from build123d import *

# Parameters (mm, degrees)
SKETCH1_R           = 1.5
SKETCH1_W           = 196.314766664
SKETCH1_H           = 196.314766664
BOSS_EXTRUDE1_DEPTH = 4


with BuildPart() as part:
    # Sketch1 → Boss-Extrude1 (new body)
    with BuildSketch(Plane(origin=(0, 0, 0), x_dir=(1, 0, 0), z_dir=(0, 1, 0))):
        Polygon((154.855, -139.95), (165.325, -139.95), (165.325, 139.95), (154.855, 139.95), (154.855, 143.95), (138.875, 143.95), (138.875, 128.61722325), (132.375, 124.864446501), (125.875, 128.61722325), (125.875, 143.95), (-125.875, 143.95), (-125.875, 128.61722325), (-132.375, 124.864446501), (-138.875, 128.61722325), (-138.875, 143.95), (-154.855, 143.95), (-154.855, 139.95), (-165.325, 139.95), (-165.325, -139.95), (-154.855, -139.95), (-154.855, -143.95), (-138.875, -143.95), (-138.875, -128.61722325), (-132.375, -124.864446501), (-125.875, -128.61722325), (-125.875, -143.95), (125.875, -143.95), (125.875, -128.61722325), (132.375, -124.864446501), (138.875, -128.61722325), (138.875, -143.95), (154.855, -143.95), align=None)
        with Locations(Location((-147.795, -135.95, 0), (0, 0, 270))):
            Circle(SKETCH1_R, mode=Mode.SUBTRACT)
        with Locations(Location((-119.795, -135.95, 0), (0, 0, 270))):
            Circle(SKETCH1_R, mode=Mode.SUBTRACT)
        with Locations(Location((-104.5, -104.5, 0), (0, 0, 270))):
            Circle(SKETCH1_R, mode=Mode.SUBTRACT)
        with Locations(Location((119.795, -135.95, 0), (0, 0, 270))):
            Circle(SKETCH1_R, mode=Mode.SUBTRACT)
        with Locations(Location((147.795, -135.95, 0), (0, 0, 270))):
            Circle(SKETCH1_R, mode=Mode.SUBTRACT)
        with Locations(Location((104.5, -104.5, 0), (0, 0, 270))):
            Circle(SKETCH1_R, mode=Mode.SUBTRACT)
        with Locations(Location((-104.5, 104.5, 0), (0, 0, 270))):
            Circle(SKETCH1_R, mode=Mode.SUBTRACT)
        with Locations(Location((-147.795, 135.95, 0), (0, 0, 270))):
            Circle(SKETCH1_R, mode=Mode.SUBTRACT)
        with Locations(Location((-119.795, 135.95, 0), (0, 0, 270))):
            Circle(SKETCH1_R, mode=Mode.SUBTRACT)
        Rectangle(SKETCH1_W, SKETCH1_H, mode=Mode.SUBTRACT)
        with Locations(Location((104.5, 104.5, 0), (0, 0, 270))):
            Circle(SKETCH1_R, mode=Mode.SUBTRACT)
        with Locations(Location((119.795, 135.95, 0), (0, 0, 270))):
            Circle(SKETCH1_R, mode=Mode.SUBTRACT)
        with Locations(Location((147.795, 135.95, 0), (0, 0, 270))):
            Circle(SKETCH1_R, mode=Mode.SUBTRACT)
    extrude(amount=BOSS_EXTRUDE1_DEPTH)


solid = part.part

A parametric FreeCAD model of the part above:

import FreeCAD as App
import Part
import Sketcher

V = App.Vector
Q = App.Units.Quantity


def add_polygon(sketch, points):
    """Adds a closed chain of lines whose ends are joined by coincident constraints."""
    first, n = sketch.GeometryCount, len(points)
    for a, b in zip(points, points[1:] + points[:1]):
        sketch.addGeometry(Part.LineSegment(App.Vector(*a, 0), App.Vector(*b, 0)), False)
    for i in range(n):
        sketch.addConstraint(Sketcher.Constraint("Coincident", first + i, 2, first + (i + 1) % n, 1))

doc = App.newDocument("Part")
params = doc.addObject("Spreadsheet::Sheet", "Params")
for row, (alias, value) in enumerate([
    ("sketch1_diameter", "3 mm"),
    ("sketch1_height", "4 mm"),
    ("sketch1_height2", "279.9 mm"),
    ("sketch1_width", "10.47 mm"),
    ("sketch1_width2", "15.98 mm"),
    ("pad1_length", "4 mm"),
], start=1):
    params.set(f"A{row}", alias)
    params.set(f"B{row}", "=" + value)
    params.setAlias(f"B{row}", alias)

body = doc.addObject("PartDesign::Body", "Body")

# Sketch on XZ plane
sketch1 = body.newObject("Sketcher::SketchObject", "Sketch")
sketch1.AttachmentSupport = (doc.getObject("XZ_Plane"), [""])
sketch1.MapMode = "FlatFace"
add_polygon(sketch1, [(154.855, 139.95), (165.325, 139.95), (165.325, -139.95), (154.855, -139.95), (154.855, -143.95), (138.875, -143.95), (138.875, -128.617223), (132.375, -124.864447), (125.875, -128.617223), (125.875, -143.95), (-125.875, -143.95), (-125.875, -128.617223), (-132.375, -124.864447), (-138.875, -128.617223), (-138.875, -143.95), (-154.855, -143.95), (-154.855, -139.95), (-165.325, -139.95), (-165.325, 139.95), (-154.855, 139.95), (-154.855, 143.95), (-138.875, 143.95), (-138.875, 128.617223), (-132.375, 124.864447), (-125.875, 128.617223), (-125.875, 143.95), (125.875, 143.95), (125.875, 128.617223), (132.375, 124.864447), (138.875, 128.617223), (138.875, 143.95), (154.855, 143.95)])  # lines 0-31
sketch1.addGeometry(Part.Circle(V(-147.795, 135.95, 0), V(0, 0, 1), 1.5), False)  # 32
sketch1.addGeometry(Part.Circle(V(-119.795, 135.95, 0), V(0, 0, 1), 1.5), False)  # 33
sketch1.addGeometry(Part.Circle(V(-104.5, 104.5, 0), V(0, 0, 1), 1.5), False)  # 34
sketch1.addGeometry(Part.Circle(V(104.5, 104.5, 0), V(0, 0, 1), 1.5), False)  # 35
sketch1.addGeometry(Part.Circle(V(119.795, 135.95, 0), V(0, 0, 1), 1.5), False)  # 36
sketch1.addGeometry(Part.Circle(V(147.795, 135.95, 0), V(0, 0, 1), 1.5), False)  # 37
sketch1.addGeometry(Part.Circle(V(-147.795, -135.95, 0), V(0, 0, 1), 1.5), False)  # 38
sketch1.addGeometry(Part.Circle(V(-119.795, -135.95, 0), V(0, 0, 1), 1.5), False)  # 39
sketch1.addGeometry(Part.Circle(V(-104.5, -104.5, 0), V(0, 0, 1), 1.5), False)  # 40
add_polygon(sketch1, [(98.157383, 98.157383), (-98.157383, 98.157383), (-98.157383, -98.157383), (98.157383, -98.157383)])  # lines 41-44
sketch1.addGeometry(Part.Circle(V(104.5, -104.5, 0), V(0, 0, 1), 1.5), False)  # 45
sketch1.addGeometry(Part.Circle(V(119.795, -135.95, 0), V(0, 0, 1), 1.5), False)  # 46
sketch1.addGeometry(Part.Circle(V(147.795, -135.95, 0), V(0, 0, 1), 1.5), False)  # 47
sketch1.addConstraint([
    Sketcher.Constraint("Horizontal", 0),
    Sketcher.Constraint("Vertical", 1),
    Sketcher.Constraint("Horizontal", 2),
    Sketcher.Constraint("Vertical", 3),
    Sketcher.Constraint("Horizontal", 4),
    Sketcher.Constraint("Vertical", 5),
    Sketcher.Constraint("Vertical", 8),
    Sketcher.Constraint("Horizontal", 9),
    Sketcher.Constraint("Vertical", 10),
    Sketcher.Constraint("Vertical", 13),
    Sketcher.Constraint("Horizontal", 14),
    Sketcher.Constraint("Vertical", 15),
    Sketcher.Constraint("Horizontal", 16),
    Sketcher.Constraint("Vertical", 17),
    Sketcher.Constraint("Horizontal", 18),
    Sketcher.Constraint("Vertical", 19),
    Sketcher.Constraint("Horizontal", 20),
    Sketcher.Constraint("Vertical", 21),
    Sketcher.Constraint("Vertical", 24),
    Sketcher.Constraint("Horizontal", 25),
    Sketcher.Constraint("Vertical", 26),
    Sketcher.Constraint("Vertical", 29),
    Sketcher.Constraint("Horizontal", 30),
    Sketcher.Constraint("Vertical", 31),
    Sketcher.Constraint("Horizontal", 41),
    Sketcher.Constraint("Vertical", 42),
    Sketcher.Constraint("Horizontal", 43),
    Sketcher.Constraint("Vertical", 44),
    Sketcher.Constraint("Equal", 32, 33),
    Sketcher.Constraint("Equal", 33, 34),
    Sketcher.Constraint("Equal", 34, 35),
    Sketcher.Constraint("Equal", 35, 36),
    Sketcher.Constraint("Equal", 36, 37),
    Sketcher.Constraint("Equal", 37, 38),
    Sketcher.Constraint("Equal", 38, 39),
    Sketcher.Constraint("Equal", 39, 40),
    Sketcher.Constraint("Equal", 40, 45),
    Sketcher.Constraint("Equal", 45, 46),
    Sketcher.Constraint("Equal", 46, 47),
    Sketcher.Constraint("Symmetric", 37, 3, 38, 3, -1, 1),
    Sketcher.Constraint("Symmetric", 36, 3, 39, 3, -1, 1),
    Sketcher.Constraint("Symmetric", 35, 3, 40, 3, -1, 1),
    Sketcher.Constraint("Symmetric", 34, 3, 45, 3, -1, 1),
    Sketcher.Constraint("Symmetric", 33, 3, 46, 3, -1, 1),
    Sketcher.Constraint("Symmetric", 32, 3, 47, 3, -1, 1),
    Sketcher.Constraint("Symmetric", 0, 2, 16, 2, -1, 1),
    Sketcher.Constraint("Symmetric", 2, 2, 18, 2, -1, 1),
    Sketcher.Constraint("Symmetric", 4, 2, 20, 2, -1, 1),
    Sketcher.Constraint("Symmetric", 6, 2, 22, 2, -1, 1),
    Sketcher.Constraint("Symmetric", 7, 2, 23, 2, -1, 1),
    Sketcher.Constraint("Symmetric", 9, 2, 25, 2, -1, 1),
    Sketcher.Constraint("Symmetric", 11, 2, 27, 2, -1, 1),
    Sketcher.Constraint("Symmetric", 12, 2, 28, 2, -1, 1),
    Sketcher.Constraint("Symmetric", 14, 2, 30, 2, -1, 1),
    Sketcher.Constraint("Symmetric", 41, 2, 43, 2, -1, 1),
    Sketcher.Constraint("Symmetric", 34, 3, 35, 3, -2),
    Sketcher.Constraint("Symmetric", 33, 3, 36, 3, -2),
    Sketcher.Constraint("Symmetric", 32, 3, 37, 3, -2),
    Sketcher.Constraint("Symmetric", 7, 2, 10, 2, -2),
    Sketcher.Constraint("Symmetric", 6, 2, 11, 2, -2),
    Sketcher.Constraint("Symmetric", 5, 2, 12, 2, -2),
    Sketcher.Constraint("Symmetric", 3, 2, 14, 2, -2),
    Sketcher.Constraint("Parallel", 6, 11),
    Sketcher.Constraint("Parallel", 11, 22),
    Sketcher.Constraint("Parallel", 22, 27),
    Sketcher.Constraint("Horizontal", 32, 3, 33, 3),
    Sketcher.Constraint("Horizontal", 5, 2, 7, 2),
    Sketcher.Constraint("Horizontal", 4, 2, 8, 2),
    Sketcher.Constraint("Horizontal", 2, 2, 15, 2),
    Sketcher.Constraint("Equal", 43, 42),
    Sketcher.Constraint("Diameter", 32, 3.0),
    Sketcher.Constraint("DistanceY", 3, 2, 3, 1, 4.0),
    Sketcher.Constraint("Angle", 6, Q("150 deg")),
    Sketcher.Constraint("DistanceY", 1, 2, 1, 1, 279.9),
    Sketcher.Constraint("DistanceX", 32, 3, 33, 3, 28.0),
    Sketcher.Constraint("DistanceX", 34, 3, 35, 3, 209.0),
    Sketcher.Constraint("DistanceY", 40, 3, 34, 3, 209.0),
    Sketcher.Constraint("DistanceY", 37, 3, 0, 2, 4.0),
    Sketcher.Constraint("DistanceX", 7, 2, 5, 2, 13.0),
    Sketcher.Constraint("DistanceX", 0, 1, 0, 2, 10.47),
    Sketcher.Constraint("DistanceX", 4, 2, 4, 1, 15.98),
    Sketcher.Constraint("DistanceX", 9, 2, 9, 1, 251.75),
    Sketcher.Constraint("DistanceX", 33, 3, 36, 3, 239.59),
    Sketcher.Constraint("DistanceX", 41, 2, 41, 1, 196.314767),
    Sketcher.Constraint("DistanceY", 5, 1, 5, 2, 15.332777),
])
sketch1.setExpression("Constraints[106]", "Params.sketch1_diameter")
sketch1.setExpression("Constraints[107]", "Params.sketch1_height")
sketch1.setExpression("Constraints[109]", "Params.sketch1_height2")
sketch1.setExpression("Constraints[115]", "Params.sketch1_width")
sketch1.setExpression("Constraints[116]", "Params.sketch1_width2")
pad1 = body.newObject("PartDesign::Pad", "Pad")
pad1.Profile = sketch1
pad1.setExpression("Length", "Params.pad1_length")
pad1.Reversed = True

doc.recompute()
